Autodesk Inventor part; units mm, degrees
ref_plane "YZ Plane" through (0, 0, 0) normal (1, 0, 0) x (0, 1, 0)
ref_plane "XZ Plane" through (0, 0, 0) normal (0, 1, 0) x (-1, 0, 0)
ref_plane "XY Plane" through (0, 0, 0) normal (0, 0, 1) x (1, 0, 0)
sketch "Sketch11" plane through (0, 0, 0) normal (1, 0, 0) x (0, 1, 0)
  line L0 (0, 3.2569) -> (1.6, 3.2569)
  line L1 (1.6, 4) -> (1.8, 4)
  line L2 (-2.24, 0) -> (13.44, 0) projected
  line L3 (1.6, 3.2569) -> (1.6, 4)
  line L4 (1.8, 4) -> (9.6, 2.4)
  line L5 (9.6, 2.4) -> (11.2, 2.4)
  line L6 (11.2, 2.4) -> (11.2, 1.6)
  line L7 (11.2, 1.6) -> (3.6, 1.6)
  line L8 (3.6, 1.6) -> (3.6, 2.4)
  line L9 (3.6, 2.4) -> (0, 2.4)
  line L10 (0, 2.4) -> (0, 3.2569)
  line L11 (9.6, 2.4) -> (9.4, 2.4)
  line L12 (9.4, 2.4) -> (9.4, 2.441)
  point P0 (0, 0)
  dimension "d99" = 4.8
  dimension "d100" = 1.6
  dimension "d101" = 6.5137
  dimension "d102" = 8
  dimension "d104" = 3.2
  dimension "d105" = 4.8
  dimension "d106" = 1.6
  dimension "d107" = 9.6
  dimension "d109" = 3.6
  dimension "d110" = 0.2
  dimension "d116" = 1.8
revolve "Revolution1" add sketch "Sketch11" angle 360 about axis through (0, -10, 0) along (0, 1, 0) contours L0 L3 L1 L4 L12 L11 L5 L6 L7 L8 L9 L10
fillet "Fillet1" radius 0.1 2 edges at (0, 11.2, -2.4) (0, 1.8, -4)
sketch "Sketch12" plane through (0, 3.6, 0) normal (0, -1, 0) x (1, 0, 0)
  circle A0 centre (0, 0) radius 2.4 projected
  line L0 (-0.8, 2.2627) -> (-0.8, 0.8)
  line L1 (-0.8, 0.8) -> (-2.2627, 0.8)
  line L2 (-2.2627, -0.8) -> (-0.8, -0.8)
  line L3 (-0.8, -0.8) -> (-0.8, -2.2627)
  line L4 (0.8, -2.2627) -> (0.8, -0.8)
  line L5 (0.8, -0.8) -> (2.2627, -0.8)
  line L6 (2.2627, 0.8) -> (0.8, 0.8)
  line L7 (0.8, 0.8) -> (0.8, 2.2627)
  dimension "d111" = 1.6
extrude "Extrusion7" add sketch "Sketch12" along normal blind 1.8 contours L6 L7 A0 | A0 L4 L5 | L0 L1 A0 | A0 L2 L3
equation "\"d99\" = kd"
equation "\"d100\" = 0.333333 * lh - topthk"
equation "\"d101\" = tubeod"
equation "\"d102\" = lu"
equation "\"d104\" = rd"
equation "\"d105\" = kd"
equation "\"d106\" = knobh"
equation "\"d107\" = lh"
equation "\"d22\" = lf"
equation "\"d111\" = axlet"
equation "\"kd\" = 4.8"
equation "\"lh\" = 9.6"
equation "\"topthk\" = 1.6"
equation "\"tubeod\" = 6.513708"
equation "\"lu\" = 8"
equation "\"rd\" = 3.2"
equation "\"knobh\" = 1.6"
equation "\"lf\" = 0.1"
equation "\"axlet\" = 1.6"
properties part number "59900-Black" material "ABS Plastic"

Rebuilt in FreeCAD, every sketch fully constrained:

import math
import FreeCAD as App
import Part
import Sketcher
from FreeCAD import Vector
Q = App.Units.Quantity


def edges_at(feature, points):
    """Names of the edges that pass closest to the given points."""
    edges = feature.Shape.Edges
    near = lambda p: min(range(len(edges)), key=lambda i: edges[i].distToShape(Part.Vertex(*p))[0])
    return sorted({f"Edge{near(p) + 1}" for p in points})


def add_polygon(sketch, points):
    """Adds a closed chain of lines whose ends are joined by coincident constraints."""
    first, n = sketch.GeometryCount, len(points)
    for a, b in zip(points, points[1:] + points[:1]):
        sketch.addGeometry(Part.LineSegment(App.Vector(*a, 0), App.Vector(*b, 0)), False)
    for i in range(n):
        sketch.addConstraint(Sketcher.Constraint("Coincident", first + i, 2, first + (i + 1) % n, 1))

doc = App.newDocument("Part")
params = doc.addObject("Spreadsheet::Sheet", "Params")
for row, (alias, value) in enumerate([
    ("sketch1_width", "1.6 mm"),
    ("sketch1_width2", "3.6 mm"),
    ("sketch1_width3", "1.8 mm"),
    ("sketch1_width4", "0.2 mm"),
    ("sketch1_width5", "7.6 mm"),
    ("revolution_angle", "360 deg"),
    ("fillet_radius", "0.1 mm"),
    ("sketch2_radius", "2.4 mm"),
    ("pad1_length", "1.8 mm"),
], start=1):
    params.set(f"A{row}", alias)
    params.set(f"B{row}", "=" + value)
    params.setAlias(f"B{row}", alias)

body = doc.addObject("PartDesign::Body", "Body")

sketch1 = body.newObject("Sketcher::SketchObject", "Sketch")
sketch1.AttachmentSupport = (doc.getObject("YZ_Plane"), [""])
sketch1.MapMode = "FlatFace"
add_polygon(sketch1, [(1.6, 3.2569), (0, 3.2569), (0, 2.4), (3.6, 2.4), (3.6, 1.6), (11.2, 1.6), (11.2, 2.4), (9.4, 2.4), (9.400005, 2.441025), (1.8, 4), (1.6, 4)])
sketch1.addConstraint([
    Sketcher.Constraint("Horizontal", 0),
    Sketcher.Constraint("Vertical", 1),
    Sketcher.Constraint("Horizontal", 2),
    Sketcher.Constraint("Vertical", 3),
    Sketcher.Constraint("Horizontal", 4),
    Sketcher.Constraint("Vertical", 5),
    Sketcher.Constraint("Horizontal", 6),
    Sketcher.Constraint("Vertical", 7),
    Sketcher.Constraint("Horizontal", 9),
    Sketcher.Constraint("Vertical", 10),
    Sketcher.Constraint("PointOnObject", 0, 2, -2),
    Sketcher.Constraint("Horizontal", 2, 2, 5, 2),
    Sketcher.Constraint("DistanceX", 0, 2, 0, 1, Q("1.6 mm")),
    Sketcher.Constraint("DistanceX", 2, 1, 2, 2, Q("3.6 mm")),
    Sketcher.Constraint("DistanceX", 6, 2, 6, 1, Q("1.8 mm")),
    Sketcher.Constraint("DistanceX", 9, 2, 9, 1, Q("0.2 mm")),
    Sketcher.Constraint("DistanceY", -1, 1, 3, 2, Q("1.6 mm")),
    Sketcher.Constraint("DistanceY", 1, 2, 8, 2, Q("1.6 mm")),
    Sketcher.Constraint("DistanceX", 4, 1, 4, 2, Q("7.6 mm")),
    Sketcher.Constraint("DistanceY", 3, 2, 3, 1, Q("0.8 mm")),
    Sketcher.Constraint("DistanceY", 1, 2, 1, 1, Q("0.857 mm")),
    Sketcher.Constraint("DistanceY", 7, 1, 7, 2, Q("0.041 mm")),
])
sketch1.setExpression("Constraints[23]", "Params.sketch1_width")
sketch1.setExpression("Constraints[24]", "Params.sketch1_width2")
sketch1.setExpression("Constraints[25]", "Params.sketch1_width3")
sketch1.setExpression("Constraints[26]", "Params.sketch1_width4")
sketch1.setExpression("Constraints[29]", "Params.sketch1_width5")
revolution = body.newObject("PartDesign::Revolution", "Revolution")
revolution.Profile = sketch1
revolution.ReferenceAxis = (sketch1, ["H_Axis"])
revolution.setExpression("Angle", "Params.revolution_angle")
doc.recompute()

fillet = body.newObject("PartDesign::Fillet", "Fillet")
fillet.Base = (revolution, edges_at(revolution, [(0, 11.2, -2.4), (0, 1.8, -4)]))
fillet.setExpression("Radius", "Params.fillet_radius")

sketch2 = body.newObject("Sketcher::SketchObject", "Sketch001")
sketch2.AttachmentSupport = (doc.getObject("XZ_Plane"), [""])
sketch2.MapMode = "FlatFace"
sketch2.AttachmentOffset = App.Placement(Vector(0, 0, -3.6), App.Rotation())
sketch2.addGeometry([
    Part.LineSegment(Vector(0.8, 0.8, 0), Vector(2.2627, 0.8, 0)),
    Part.ArcOfCircle(Part.Circle(Vector(0, 0, 0), Vector(0, 0, 1), 2.4), math.radians(19.471552), math.radians(70.528448)),
    Part.LineSegment(Vector(0.8, 2.2627, 0), Vector(0.8, 0.8, 0)),
    Part.ArcOfCircle(Part.Circle(Vector(0, 0, 0), Vector(0, 0, 1), 2.4), math.radians(-70.528448), math.radians(-19.471552)),
    Part.LineSegment(Vector(2.2627, -0.8, 0), Vector(0.8, -0.8, 0)),
    Part.LineSegment(Vector(0.8, -0.8, 0), Vector(0.8, -2.2627, 0)),
    Part.LineSegment(Vector(-0.8, 0.8, 0), Vector(-0.8, 2.2627, 0)),
    Part.ArcOfCircle(Part.Circle(Vector(0, 0, 0), Vector(0, 0, 1), 2.4), math.radians(109.471552), math.radians(160.528448)),
    Part.LineSegment(Vector(-2.2627, 0.8, 0), Vector(-0.8, 0.8, 0)),
    Part.ArcOfCircle(Part.Circle(Vector(0, 0, 0), Vector(0, 0, 1), 2.4), math.radians(-160.528448), math.radians(-109.471552)),
    Part.LineSegment(Vector(-0.8, -2.2627, 0), Vector(-0.8, -0.8, 0)),
    Part.LineSegment(Vector(-0.8, -0.8, 0), Vector(-2.2627, -0.8, 0)),
], False)
sketch2.addConstraint([
    Sketcher.Constraint("Coincident", 0, 2, 1, 1),
    Sketcher.Constraint("Coincident", 1, 2, 2, 1),
    Sketcher.Constraint("Coincident", 2, 2, 0, 1),
    Sketcher.Constraint("Coincident", 3, 2, 4, 1),
    Sketcher.Constraint("Coincident", 4, 2, 5, 1),
    Sketcher.Constraint("Coincident", 5, 2, 3, 1),
    Sketcher.Constraint("Coincident", 6, 2, 7, 1),
    Sketcher.Constraint("Coincident", 7, 2, 8, 1),
    Sketcher.Constraint("Coincident", 8, 2, 6, 1),
    Sketcher.Constraint("Coincident", 9, 2, 10, 1),
    Sketcher.Constraint("Coincident", 10, 2, 11, 1),
    Sketcher.Constraint("Coincident", 11, 2, 9, 1),
    Sketcher.Constraint("Horizontal", 0),
    Sketcher.Constraint("Vertical", 2),
    Sketcher.Constraint("Horizontal", 4),
    Sketcher.Constraint("Vertical", 5),
    Sketcher.Constraint("Vertical", 6),
    Sketcher.Constraint("Horizontal", 8),
    Sketcher.Constraint("Vertical", 10),
    Sketcher.Constraint("Horizontal", 11),
    Sketcher.Constraint("Coincident", 1, 3, -1, 1),
    Sketcher.Constraint("Coincident", 3, 3, -1, 1),
    Sketcher.Constraint("Coincident", 7, 3, -1, 1),
    Sketcher.Constraint("Coincident", 9, 3, -1, 1),
    Sketcher.Constraint("Equal", 1, 3),
    Sketcher.Constraint("Equal", 3, 7),
    Sketcher.Constraint("Equal", 7, 9),
    Sketcher.Constraint("Symmetric", 4, 2, 8, 2, -1, 1),
    Sketcher.Constraint("Symmetric", 2, 2, 10, 2, -1, 1),
    Sketcher.Constraint("Symmetric", 2, 2, 8, 2, -2),
    Sketcher.Constraint("Equal", 11, 2),
    Sketcher.Constraint("Radius", 1, Q("2.4 mm")),
    Sketcher.Constraint("DistanceY", 3, 2, 0, 2, Q("1.6 mm")),
])
sketch2.setExpression("Constraints[31]", "Params.sketch2_radius")
pad1 = body.newObject("PartDesign::Pad", "Pad")
pad1.Profile = sketch2
pad1.setExpression("Length", "Params.pad1_length")

doc.recompute()
